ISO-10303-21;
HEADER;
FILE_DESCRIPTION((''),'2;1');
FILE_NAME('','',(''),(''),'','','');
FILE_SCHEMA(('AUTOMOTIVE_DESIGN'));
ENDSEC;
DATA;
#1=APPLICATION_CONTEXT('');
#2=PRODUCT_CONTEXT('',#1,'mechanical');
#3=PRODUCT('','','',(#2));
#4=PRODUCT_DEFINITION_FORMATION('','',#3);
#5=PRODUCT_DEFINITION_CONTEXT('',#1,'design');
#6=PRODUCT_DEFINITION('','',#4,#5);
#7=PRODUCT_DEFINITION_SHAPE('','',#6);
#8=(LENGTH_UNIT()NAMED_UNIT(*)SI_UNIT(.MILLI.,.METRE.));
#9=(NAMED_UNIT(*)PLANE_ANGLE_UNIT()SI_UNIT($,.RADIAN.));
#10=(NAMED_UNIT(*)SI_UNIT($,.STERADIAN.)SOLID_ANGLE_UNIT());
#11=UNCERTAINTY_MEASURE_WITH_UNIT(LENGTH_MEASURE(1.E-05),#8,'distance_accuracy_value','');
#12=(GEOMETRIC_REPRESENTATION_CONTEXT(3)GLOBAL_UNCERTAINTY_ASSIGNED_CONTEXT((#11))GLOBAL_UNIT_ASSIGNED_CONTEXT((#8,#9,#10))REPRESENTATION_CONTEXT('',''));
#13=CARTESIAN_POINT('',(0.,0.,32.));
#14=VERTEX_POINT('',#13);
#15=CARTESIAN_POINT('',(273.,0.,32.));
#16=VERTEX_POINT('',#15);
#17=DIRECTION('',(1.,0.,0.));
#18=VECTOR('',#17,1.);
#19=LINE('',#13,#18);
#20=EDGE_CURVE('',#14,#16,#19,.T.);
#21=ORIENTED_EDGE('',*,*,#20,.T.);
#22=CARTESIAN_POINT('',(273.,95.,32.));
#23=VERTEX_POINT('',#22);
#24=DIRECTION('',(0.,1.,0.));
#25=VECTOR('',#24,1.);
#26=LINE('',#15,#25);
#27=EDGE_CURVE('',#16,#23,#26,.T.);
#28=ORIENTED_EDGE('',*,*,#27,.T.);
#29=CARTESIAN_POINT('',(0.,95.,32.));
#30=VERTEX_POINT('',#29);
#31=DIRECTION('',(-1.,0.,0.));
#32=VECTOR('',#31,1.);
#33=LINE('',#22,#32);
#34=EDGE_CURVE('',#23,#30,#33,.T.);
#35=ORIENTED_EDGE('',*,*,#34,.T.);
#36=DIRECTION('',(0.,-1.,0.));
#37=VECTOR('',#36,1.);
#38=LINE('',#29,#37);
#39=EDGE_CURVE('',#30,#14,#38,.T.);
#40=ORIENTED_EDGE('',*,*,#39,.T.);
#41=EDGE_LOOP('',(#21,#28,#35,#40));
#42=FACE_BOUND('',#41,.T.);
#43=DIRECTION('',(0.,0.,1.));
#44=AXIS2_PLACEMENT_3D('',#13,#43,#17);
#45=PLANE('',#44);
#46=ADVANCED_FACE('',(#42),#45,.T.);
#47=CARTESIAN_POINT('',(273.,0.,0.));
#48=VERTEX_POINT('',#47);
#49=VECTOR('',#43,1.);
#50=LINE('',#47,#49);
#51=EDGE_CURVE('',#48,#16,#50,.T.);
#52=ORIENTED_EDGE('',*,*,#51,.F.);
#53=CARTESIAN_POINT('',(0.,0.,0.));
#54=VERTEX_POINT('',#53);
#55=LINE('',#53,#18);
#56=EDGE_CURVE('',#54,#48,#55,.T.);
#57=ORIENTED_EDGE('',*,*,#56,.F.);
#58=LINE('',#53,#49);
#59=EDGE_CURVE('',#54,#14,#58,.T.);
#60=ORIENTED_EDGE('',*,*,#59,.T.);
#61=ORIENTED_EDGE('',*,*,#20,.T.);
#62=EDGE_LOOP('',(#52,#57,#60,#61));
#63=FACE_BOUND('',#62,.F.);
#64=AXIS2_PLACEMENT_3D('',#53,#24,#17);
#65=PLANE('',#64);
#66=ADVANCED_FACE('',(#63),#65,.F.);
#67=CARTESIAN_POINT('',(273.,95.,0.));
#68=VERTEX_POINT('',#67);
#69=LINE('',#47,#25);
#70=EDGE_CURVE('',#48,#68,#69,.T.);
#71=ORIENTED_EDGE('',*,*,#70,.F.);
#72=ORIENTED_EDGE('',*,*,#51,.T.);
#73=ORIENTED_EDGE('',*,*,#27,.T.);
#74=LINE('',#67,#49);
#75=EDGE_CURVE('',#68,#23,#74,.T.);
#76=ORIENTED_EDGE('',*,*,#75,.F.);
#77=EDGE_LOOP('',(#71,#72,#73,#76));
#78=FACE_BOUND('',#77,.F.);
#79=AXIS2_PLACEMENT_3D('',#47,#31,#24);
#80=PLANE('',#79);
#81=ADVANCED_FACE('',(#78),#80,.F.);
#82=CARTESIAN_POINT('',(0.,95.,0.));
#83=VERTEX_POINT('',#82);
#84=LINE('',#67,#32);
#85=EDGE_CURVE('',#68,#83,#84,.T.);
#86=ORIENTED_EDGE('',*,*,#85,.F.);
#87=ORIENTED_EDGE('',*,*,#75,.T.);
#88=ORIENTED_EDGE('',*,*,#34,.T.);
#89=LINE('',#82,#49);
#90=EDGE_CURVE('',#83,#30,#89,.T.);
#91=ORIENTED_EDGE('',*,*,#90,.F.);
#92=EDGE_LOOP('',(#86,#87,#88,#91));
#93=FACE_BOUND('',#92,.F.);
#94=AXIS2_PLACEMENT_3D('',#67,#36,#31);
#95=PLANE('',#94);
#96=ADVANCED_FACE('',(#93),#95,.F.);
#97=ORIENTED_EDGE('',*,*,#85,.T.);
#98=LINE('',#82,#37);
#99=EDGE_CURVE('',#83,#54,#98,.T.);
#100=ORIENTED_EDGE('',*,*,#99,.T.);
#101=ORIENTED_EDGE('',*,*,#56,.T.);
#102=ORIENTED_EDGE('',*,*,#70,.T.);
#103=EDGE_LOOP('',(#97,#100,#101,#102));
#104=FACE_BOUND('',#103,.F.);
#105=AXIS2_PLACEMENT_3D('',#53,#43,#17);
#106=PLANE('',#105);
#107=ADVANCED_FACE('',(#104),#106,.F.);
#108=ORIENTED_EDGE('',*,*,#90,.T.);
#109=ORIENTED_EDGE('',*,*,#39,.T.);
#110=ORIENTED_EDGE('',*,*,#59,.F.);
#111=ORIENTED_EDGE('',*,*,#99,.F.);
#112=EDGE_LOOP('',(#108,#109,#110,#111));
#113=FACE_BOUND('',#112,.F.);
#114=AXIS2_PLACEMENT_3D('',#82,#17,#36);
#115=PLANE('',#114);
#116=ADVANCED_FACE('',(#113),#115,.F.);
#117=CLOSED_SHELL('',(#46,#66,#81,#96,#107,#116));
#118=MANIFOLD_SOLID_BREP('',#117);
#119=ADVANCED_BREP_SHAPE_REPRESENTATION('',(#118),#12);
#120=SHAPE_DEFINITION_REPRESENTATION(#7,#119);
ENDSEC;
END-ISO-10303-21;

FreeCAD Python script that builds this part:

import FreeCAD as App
import Part
import Sketcher


def add_polygon(sketch, points):
    """Adds a closed chain of lines whose ends are joined by coincident constraints."""
    first, n = sketch.GeometryCount, len(points)
    for a, b in zip(points, points[1:] + points[:1]):
        sketch.addGeometry(Part.LineSegment(App.Vector(*a, 0), App.Vector(*b, 0)), False)
    for i in range(n):
        sketch.addConstraint(Sketcher.Constraint("Coincident", first + i, 2, first + (i + 1) % n, 1))

doc = App.newDocument("Part")
body = doc.addObject("PartDesign::Body", "Body")

# Sketch on XY plane
sketch1 = body.newObject("Sketcher::SketchObject", "Sketch")
sketch1.AttachmentSupport = (doc.getObject("XY_Plane"), [""])
sketch1.MapMode = "FlatFace"
add_polygon(sketch1, [(0, 95), (0, 0), (273, 0), (273, 95)])  # lines 0-3
sketch1.addConstraint([
    Sketcher.Constraint("Vertical", 0),
    Sketcher.Constraint("Horizontal", 1),
    Sketcher.Constraint("Vertical", 2),
    Sketcher.Constraint("Horizontal", 3),
    Sketcher.Constraint("Coincident", 0, 2, -1, 1),
    Sketcher.Constraint("DistanceX", 1, 1, 1, 2, 273.0),
    Sketcher.Constraint("DistanceY", 0, 2, 0, 1, 95.0),
])
pad1 = body.newObject("PartDesign::Pad", "Pad")
pad1.Profile = sketch1
pad1.Length = 32

doc.recompute()
